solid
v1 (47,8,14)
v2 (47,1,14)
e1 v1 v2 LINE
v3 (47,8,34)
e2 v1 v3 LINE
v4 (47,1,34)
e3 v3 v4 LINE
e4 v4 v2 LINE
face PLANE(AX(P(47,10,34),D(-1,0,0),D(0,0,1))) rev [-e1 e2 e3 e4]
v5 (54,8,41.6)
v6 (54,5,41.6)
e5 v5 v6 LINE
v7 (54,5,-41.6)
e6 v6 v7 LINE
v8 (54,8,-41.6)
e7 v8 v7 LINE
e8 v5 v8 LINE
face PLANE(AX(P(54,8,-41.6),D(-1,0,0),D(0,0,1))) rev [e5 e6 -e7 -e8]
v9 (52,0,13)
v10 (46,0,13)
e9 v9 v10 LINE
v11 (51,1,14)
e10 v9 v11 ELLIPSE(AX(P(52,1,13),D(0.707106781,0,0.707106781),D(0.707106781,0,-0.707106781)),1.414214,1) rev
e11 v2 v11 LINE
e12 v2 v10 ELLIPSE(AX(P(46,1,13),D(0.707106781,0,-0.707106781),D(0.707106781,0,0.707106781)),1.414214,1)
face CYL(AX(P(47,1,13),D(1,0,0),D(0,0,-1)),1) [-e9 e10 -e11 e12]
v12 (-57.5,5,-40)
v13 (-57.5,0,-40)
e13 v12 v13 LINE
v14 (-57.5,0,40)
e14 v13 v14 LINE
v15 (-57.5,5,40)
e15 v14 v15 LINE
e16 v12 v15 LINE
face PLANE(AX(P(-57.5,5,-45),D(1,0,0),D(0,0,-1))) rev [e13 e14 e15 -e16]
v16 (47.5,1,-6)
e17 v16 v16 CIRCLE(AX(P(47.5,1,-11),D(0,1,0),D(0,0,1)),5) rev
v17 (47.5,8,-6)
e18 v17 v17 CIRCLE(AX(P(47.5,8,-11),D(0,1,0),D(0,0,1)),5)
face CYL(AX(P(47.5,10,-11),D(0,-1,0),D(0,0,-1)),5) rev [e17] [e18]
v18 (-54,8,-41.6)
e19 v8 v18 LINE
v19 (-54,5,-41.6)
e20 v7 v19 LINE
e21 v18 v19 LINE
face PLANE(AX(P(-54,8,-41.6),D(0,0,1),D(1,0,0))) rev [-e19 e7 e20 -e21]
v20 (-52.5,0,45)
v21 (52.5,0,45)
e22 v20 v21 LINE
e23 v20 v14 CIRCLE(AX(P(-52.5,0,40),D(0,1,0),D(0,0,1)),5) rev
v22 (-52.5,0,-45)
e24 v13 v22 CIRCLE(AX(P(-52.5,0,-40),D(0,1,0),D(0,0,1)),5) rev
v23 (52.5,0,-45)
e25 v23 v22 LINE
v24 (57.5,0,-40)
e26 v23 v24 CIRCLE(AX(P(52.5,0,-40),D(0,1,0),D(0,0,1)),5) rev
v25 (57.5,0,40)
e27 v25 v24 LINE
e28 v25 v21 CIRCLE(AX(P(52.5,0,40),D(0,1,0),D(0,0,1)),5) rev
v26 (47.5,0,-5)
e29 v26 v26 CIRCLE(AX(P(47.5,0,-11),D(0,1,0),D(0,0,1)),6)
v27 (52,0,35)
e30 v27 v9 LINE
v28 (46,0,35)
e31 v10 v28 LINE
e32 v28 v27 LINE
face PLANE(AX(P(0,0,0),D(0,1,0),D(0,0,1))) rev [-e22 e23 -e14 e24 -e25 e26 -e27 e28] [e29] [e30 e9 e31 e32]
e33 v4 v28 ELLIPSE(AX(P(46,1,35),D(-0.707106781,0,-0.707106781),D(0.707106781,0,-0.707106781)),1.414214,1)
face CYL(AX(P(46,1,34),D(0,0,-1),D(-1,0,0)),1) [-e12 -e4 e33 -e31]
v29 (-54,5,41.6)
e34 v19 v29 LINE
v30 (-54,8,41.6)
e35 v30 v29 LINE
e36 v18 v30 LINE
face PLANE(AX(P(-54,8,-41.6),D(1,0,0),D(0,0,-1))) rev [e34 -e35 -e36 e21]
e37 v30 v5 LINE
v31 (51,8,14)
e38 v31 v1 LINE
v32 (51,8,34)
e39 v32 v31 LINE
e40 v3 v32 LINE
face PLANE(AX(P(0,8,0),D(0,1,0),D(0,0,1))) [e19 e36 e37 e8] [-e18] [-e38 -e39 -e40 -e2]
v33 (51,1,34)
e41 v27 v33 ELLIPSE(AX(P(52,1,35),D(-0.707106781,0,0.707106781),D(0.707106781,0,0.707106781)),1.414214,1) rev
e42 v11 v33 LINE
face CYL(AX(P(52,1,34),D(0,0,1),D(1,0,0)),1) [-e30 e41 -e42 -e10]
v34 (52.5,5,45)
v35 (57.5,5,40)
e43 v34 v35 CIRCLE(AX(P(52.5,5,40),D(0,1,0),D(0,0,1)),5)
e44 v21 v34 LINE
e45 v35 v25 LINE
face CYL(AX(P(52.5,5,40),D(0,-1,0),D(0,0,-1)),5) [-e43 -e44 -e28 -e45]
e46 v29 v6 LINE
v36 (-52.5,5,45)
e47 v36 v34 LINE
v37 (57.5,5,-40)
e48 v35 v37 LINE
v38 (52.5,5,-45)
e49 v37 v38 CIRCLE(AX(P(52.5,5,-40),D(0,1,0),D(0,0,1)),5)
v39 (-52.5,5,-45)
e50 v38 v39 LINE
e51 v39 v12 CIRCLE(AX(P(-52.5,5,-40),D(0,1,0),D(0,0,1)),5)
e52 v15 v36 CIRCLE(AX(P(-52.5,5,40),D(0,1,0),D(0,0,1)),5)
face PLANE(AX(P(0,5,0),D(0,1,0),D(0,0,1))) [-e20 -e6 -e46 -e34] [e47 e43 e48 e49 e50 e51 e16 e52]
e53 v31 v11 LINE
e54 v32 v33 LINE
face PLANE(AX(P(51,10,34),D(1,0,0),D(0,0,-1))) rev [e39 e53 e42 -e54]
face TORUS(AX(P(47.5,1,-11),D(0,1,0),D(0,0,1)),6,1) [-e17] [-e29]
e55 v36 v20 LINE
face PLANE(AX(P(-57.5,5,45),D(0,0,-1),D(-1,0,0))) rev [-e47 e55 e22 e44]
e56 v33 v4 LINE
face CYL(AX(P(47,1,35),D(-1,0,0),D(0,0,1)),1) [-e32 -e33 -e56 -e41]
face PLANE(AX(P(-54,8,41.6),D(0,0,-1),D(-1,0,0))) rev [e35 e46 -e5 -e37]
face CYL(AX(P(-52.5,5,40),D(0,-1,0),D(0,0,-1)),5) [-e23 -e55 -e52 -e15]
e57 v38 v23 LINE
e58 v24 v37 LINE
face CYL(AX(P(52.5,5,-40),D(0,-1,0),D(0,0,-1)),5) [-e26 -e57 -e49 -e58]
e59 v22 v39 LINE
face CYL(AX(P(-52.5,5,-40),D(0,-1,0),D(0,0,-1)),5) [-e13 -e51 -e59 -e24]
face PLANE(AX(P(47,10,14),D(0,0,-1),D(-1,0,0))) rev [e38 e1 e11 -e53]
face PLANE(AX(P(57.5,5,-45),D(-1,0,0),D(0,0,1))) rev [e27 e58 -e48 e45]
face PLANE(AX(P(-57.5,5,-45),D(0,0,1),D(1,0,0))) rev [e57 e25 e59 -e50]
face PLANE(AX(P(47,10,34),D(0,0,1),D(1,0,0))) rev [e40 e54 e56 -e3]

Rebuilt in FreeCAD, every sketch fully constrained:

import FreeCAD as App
import Part
import Sketcher

V = App.Vector
Q = App.Units.Quantity


def edges_at(feature, points):
    """Names of the edges that pass closest to the given points."""
    edges = feature.Shape.Edges
    near = lambda p: min(range(len(edges)), key=lambda i: edges[i].distToShape(Part.Vertex(*p))[0])
    return sorted({f"Edge{near(p) + 1}" for p in points})

doc = App.newDocument("Part")
body = doc.addObject("PartDesign::Body", "Body")

# Sketch on XZ plane
sketch1 = body.newObject("Sketcher::SketchObject", "Sketch")
sketch1.AttachmentSupport = (doc.getObject("XZ_Plane"), [""])
sketch1.MapMode = "FlatFace"
sketch1.addGeometry(Part.LineSegment(V(-58, -45, 0), V(-58, 45, 0)), False)
sketch1.addGeometry(Part.LineSegment(V(-58, 45, 0), V(58, 45, 0)), False)
sketch1.addGeometry(Part.LineSegment(V(58, 45, 0), V(58, -45, 0)), False)
sketch1.addGeometry(Part.LineSegment(V(58, -45, 0), V(-58, -45, 0)), False)
sketch1.addConstraint(Sketcher.Constraint("Coincident", 0, 2, 1, 1))
sketch1.addConstraint(Sketcher.Constraint("Coincident", 1, 2, 2, 1))
sketch1.addConstraint(Sketcher.Constraint("Coincident", 2, 2, 3, 1))
sketch1.addConstraint(Sketcher.Constraint("Coincident", 3, 2, 0, 1))
sketch1.addConstraint(Sketcher.Constraint("Vertical", 0))
sketch1.addConstraint(Sketcher.Constraint("Horizontal", 1))
sketch1.addConstraint(Sketcher.Constraint("Vertical", 2))
sketch1.addConstraint(Sketcher.Constraint("Horizontal", 3))
sketch1.addConstraint(Sketcher.Constraint("Symmetric", 0, 2, 2, 2, -1, 1))
sketch1.addConstraint(Sketcher.Constraint("DistanceX", 1, 1, 1, 2, Q("115 mm")))
sketch1.addConstraint(Sketcher.Constraint("DistanceY", 0, 1, 0, 2, Q("90 mm")))
pad1 = body.newObject("PartDesign::Pad", "Pad")
pad1.Profile = sketch1
pad1.Length = 5
pad1.Reversed = True

# Sketch on XZ plane
sketch2 = body.newObject("Sketcher::SketchObject", "Sketch001")
sketch2.AttachmentSupport = (doc.getObject("XZ_Plane"), [""])
sketch2.MapMode = "FlatFace"
sketch2.AttachmentOffset = App.Placement(V(0, 0, -5), App.Rotation())
sketch2.addGeometry(Part.LineSegment(V(-54, -42, 0), V(-54, 42, 0)), False)
sketch2.addGeometry(Part.LineSegment(V(-54, 42, 0), V(54, 42, 0)), False)
sketch2.addGeometry(Part.LineSegment(V(54, 42, 0), V(54, -42, 0)), False)
sketch2.addGeometry(Part.LineSegment(V(54, -42, 0), V(-54, -42, 0)), False)
sketch2.addConstraint(Sketcher.Constraint("Coincident", 0, 2, 1, 1))
sketch2.addConstraint(Sketcher.Constraint("Coincident", 1, 2, 2, 1))
sketch2.addConstraint(Sketcher.Constraint("Coincident", 2, 2, 3, 1))
sketch2.addConstraint(Sketcher.Constraint("Coincident", 3, 2, 0, 1))
sketch2.addConstraint(Sketcher.Constraint("Vertical", 0))
sketch2.addConstraint(Sketcher.Constraint("Horizontal", 1))
sketch2.addConstraint(Sketcher.Constraint("Vertical", 2))
sketch2.addConstraint(Sketcher.Constraint("Horizontal", 3))
sketch2.addConstraint(Sketcher.Constraint("Symmetric", 0, 2, 2, 2, -1, 1))
sketch2.addConstraint(Sketcher.Constraint("DistanceX", 1, 1, 1, 2, Q("108 mm")))
sketch2.addConstraint(Sketcher.Constraint("DistanceY", 0, 1, 0, 2, Q("83.2 mm")))
pad2 = body.newObject("PartDesign::Pad", "Pad001")
pad2.Profile = sketch2
pad2.Length = 3
pad2.Reversed = True
doc.recompute()

fillet = body.newObject("PartDesign::Fillet", "Fillet")
fillet.Base = (pad2, edges_at(pad2, [
    (57.5, 2.5, 45),
    (-57.5, 2.5, 45),
    (-57.5, 2.5, -45),
    (57.5, 2.5, -45),
]))
fillet.Radius = 5

# Sketch on XZ plane
sketch3 = body.newObject("Sketcher::SketchObject", "Sketch002")
sketch3.AttachmentSupport = (doc.getObject("XZ_Plane"), [""])
sketch3.MapMode = "FlatFace"
sketch3.addGeometry(Part.LineSegment(V(51, 14, 0), V(51, 34, 0)), False)
sketch3.addGeometry(Part.LineSegment(V(51, 34, 0), V(47, 34, 0)), False)
sketch3.addGeometry(Part.LineSegment(V(47, 34, 0), V(47, 14, 0)), False)
sketch3.addGeometry(Part.LineSegment(V(47, 14, 0), V(51, 14, 0)), False)
sketch3.addConstraint(Sketcher.Constraint("Coincident", 0, 2, 1, 1))
sketch3.addConstraint(Sketcher.Constraint("Coincident", 1, 2, 2, 1))
sketch3.addConstraint(Sketcher.Constraint("Coincident", 2, 2, 3, 1))
sketch3.addConstraint(Sketcher.Constraint("Coincident", 3, 2, 0, 1))
sketch3.addConstraint(Sketcher.Constraint("Vertical", 0))
sketch3.addConstraint(Sketcher.Constraint("Horizontal", 1))
sketch3.addConstraint(Sketcher.Constraint("Vertical", 2))
sketch3.addConstraint(Sketcher.Constraint("Horizontal", 3))
sketch3.addConstraint(Sketcher.Constraint("DistanceX", 1, 2, 1, 1, Q("4 mm")))
sketch3.addConstraint(Sketcher.Constraint("DistanceY", 0, 1, 0, 2, Q("20 mm")))
sketch3.addConstraint(Sketcher.Constraint("DistanceX", -1, 1, 0, 2, Q("51 mm")))
sketch3.addConstraint(Sketcher.Constraint("DistanceY", -1, 1, 0, 2, Q("34 mm")))
pocket1 = body.newObject("PartDesign::Pocket", "Pocket")
pocket1.Profile = sketch3
pocket1.Length = 10
doc.recompute()

fillet2 = body.newObject("PartDesign::Fillet", "Fillet001")
fillet2.Base = (pocket1, edges_at(pocket1, [
    (47, 0, 24),
    (49, 0, 14),
    (51, 0, 24),
    (49, 0, 34),
]))
fillet2.Radius = 1

# Sketch on XZ plane
sketch4 = body.newObject("Sketcher::SketchObject", "Sketch003")
sketch4.AttachmentSupport = (doc.getObject("XZ_Plane"), [""])
sketch4.MapMode = "FlatFace"
sketch4.addGeometry(Part.Circle(V(48, -11, 0), V(0, 0, 1), 5), False)
sketch4.addConstraint(Sketcher.Constraint("Diameter", 0, Q("10 mm")))
sketch4.addConstraint(Sketcher.Constraint("DistanceY", 0, 3, -1, 1, Q("11 mm")))
sketch4.addConstraint(Sketcher.Constraint("DistanceX", -1, 1, 0, 3, Q("47.5 mm")))
pocket2 = body.newObject("PartDesign::Pocket", "Pocket001")
pocket2.Profile = sketch4
pocket2.Length = 10
doc.recompute()

fillet3 = body.newObject("PartDesign::Fillet", "Fillet002")
fillet3.Base = (pocket2, edges_at(pocket2, [(42.5, 0, -11)]))
fillet3.Radius = 1

doc.recompute()
